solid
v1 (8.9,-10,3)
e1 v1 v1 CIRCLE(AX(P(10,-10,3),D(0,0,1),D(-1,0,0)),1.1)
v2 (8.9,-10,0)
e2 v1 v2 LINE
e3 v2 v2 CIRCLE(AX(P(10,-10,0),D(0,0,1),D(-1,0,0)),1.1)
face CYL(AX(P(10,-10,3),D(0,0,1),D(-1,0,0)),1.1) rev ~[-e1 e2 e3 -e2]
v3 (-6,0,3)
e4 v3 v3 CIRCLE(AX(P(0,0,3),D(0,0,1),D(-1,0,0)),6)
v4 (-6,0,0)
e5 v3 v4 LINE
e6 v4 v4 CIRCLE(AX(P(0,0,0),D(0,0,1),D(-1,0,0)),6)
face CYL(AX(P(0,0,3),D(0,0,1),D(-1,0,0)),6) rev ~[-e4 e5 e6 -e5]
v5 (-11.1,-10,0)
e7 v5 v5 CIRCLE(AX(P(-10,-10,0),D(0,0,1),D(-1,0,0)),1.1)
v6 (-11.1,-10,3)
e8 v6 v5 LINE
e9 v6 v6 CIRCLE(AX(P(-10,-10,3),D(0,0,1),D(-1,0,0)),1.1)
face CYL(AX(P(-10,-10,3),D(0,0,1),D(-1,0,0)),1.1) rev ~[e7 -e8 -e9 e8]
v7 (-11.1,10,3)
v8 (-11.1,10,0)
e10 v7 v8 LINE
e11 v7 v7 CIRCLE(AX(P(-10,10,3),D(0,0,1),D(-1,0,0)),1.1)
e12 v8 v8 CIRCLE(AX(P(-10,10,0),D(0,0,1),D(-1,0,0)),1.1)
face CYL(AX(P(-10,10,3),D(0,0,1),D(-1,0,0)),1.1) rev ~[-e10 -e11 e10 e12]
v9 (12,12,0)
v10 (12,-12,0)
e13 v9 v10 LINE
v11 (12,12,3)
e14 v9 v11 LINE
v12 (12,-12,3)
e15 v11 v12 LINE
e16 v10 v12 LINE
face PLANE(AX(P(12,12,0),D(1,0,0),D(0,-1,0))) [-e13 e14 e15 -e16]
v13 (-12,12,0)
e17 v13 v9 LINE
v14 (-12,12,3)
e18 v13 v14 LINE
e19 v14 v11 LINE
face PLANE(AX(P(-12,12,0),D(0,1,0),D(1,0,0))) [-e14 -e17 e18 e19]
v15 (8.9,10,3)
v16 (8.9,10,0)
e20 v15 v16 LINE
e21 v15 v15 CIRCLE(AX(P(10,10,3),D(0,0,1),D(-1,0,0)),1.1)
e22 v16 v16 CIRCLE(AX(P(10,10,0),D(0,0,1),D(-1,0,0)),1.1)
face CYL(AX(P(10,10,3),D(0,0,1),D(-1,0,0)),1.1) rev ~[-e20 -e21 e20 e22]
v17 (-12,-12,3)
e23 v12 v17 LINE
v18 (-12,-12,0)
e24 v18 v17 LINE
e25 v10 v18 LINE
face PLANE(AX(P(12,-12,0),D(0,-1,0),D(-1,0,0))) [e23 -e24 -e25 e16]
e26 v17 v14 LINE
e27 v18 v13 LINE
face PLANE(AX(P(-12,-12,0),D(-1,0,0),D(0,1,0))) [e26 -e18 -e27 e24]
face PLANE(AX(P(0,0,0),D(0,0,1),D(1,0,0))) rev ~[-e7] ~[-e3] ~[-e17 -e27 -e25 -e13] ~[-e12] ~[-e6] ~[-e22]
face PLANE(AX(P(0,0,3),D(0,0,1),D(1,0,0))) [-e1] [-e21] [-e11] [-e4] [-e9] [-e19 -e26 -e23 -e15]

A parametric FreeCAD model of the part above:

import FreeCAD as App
import Part
import Sketcher
Q = App.Units.Quantity

doc = App.newDocument("Part")
body = doc.addObject("PartDesign::Body", "Body")

sketch1 = body.newObject("Sketcher::SketchObject", "Sketch")
sketch1.AttachmentSupport = (doc.getObject("XY_Plane"), [""])
sketch1.MapMode = "FlatFace"
sketch1.addGeometry(Part.LineSegment(App.Vector(-12, -12, 0), App.Vector(12, -12, 0)), False)
sketch1.addGeometry(Part.LineSegment(App.Vector(12, -12, 0), App.Vector(12, 12, 0)), False)
sketch1.addGeometry(Part.LineSegment(App.Vector(12, 12, 0), App.Vector(-12, 12, 0)), False)
sketch1.addGeometry(Part.LineSegment(App.Vector(-12, 12, 0), App.Vector(-12, -12, 0)), False)
sketch1.addConstraint(Sketcher.Constraint("Coincident", 0, 2, 1, 1))
sketch1.addConstraint(Sketcher.Constraint("Coincident", 1, 2, 2, 1))
sketch1.addConstraint(Sketcher.Constraint("Coincident", 2, 2, 3, 1))
sketch1.addConstraint(Sketcher.Constraint("Coincident", 3, 2, 0, 1))
sketch1.addConstraint(Sketcher.Constraint("Horizontal", 0))
sketch1.addConstraint(Sketcher.Constraint("Vertical", 1))
sketch1.addConstraint(Sketcher.Constraint("Horizontal", 2))
sketch1.addConstraint(Sketcher.Constraint("Vertical", 3))
sketch1.addConstraint(Sketcher.Constraint("Symmetric", 0, 2, 2, 2, -1, 1))
sketch1.addConstraint(Sketcher.Constraint("Equal", 2, 1))
sketch1.addConstraint(Sketcher.Constraint("DistanceX", 0, 1, 0, 2, Q("24 mm")))
pad1 = body.newObject("PartDesign::Pad", "Pad")
pad1.Profile = sketch1
pad1.Length = 3

sketch2 = body.newObject("Sketcher::SketchObject", "Sketch001")
sketch2.AttachmentSupport = (doc.getObject("XY_Plane"), [""])
sketch2.MapMode = "FlatFace"
sketch2.AttachmentOffset = App.Placement(App.Vector(0, 0, 3), App.Rotation())
sketch2.addGeometry(Part.Circle(App.Vector(-10, 10, 0), App.Vector(0, 0, 1), 1.1), False)
sketch2.addGeometry(Part.Circle(App.Vector(10, 10, 0), App.Vector(0, 0, 1), 1.1), False)
sketch2.addGeometry(Part.Circle(App.Vector(-10, -10, 0), App.Vector(0, 0, 1), 1.1), False)
sketch2.addGeometry(Part.Circle(App.Vector(10, -10, 0), App.Vector(0, 0, 1), 1.1), False)
sketch2.addConstraint(Sketcher.Constraint("Equal", 0, 1))
sketch2.addConstraint(Sketcher.Constraint("Equal", 1, 2))
sketch2.addConstraint(Sketcher.Constraint("Equal", 2, 3))
sketch2.addConstraint(Sketcher.Constraint("Symmetric", 1, 3, 2, 3, -1, 1))
sketch2.addConstraint(Sketcher.Constraint("Symmetric", 0, 3, 3, 3, -1, 1))
sketch2.addConstraint(Sketcher.Constraint("Symmetric", 0, 3, 1, 3, -2))
sketch2.addConstraint(Sketcher.Constraint("Diameter", 0, Q("2.2 mm")))
sketch2.addConstraint(Sketcher.Constraint("DistanceX", 0, 3, -1, 1, Q("10 mm")))
sketch2.addConstraint(Sketcher.Constraint("DistanceY", -1, 1, 0, 3, Q("10 mm")))
pocket1 = body.newObject("PartDesign::Pocket", "Pocket")
pocket1.Profile = sketch2
pocket1.Type = "ThroughAll"

sketch3 = body.newObject("Sketcher::SketchObject", "Sketch002")
sketch3.AttachmentSupport = (doc.getObject("XY_Plane"), [""])
sketch3.MapMode = "FlatFace"
sketch3.AttachmentOffset = App.Placement(App.Vector(0, 0, 3), App.Rotation())
sketch3.addGeometry(Part.Circle(App.Vector(0, 0, 0), App.Vector(0, 0, 1), 6), False)
sketch3.addConstraint(Sketcher.Constraint("Coincident", 0, 3, -1, 1))
sketch3.addConstraint(Sketcher.Constraint("Diameter", 0, Q("12 mm")))
pocket2 = body.newObject("PartDesign::Pocket", "Pocket001")
pocket2.Profile = sketch3
pocket2.Length = 6

doc.recompute()
